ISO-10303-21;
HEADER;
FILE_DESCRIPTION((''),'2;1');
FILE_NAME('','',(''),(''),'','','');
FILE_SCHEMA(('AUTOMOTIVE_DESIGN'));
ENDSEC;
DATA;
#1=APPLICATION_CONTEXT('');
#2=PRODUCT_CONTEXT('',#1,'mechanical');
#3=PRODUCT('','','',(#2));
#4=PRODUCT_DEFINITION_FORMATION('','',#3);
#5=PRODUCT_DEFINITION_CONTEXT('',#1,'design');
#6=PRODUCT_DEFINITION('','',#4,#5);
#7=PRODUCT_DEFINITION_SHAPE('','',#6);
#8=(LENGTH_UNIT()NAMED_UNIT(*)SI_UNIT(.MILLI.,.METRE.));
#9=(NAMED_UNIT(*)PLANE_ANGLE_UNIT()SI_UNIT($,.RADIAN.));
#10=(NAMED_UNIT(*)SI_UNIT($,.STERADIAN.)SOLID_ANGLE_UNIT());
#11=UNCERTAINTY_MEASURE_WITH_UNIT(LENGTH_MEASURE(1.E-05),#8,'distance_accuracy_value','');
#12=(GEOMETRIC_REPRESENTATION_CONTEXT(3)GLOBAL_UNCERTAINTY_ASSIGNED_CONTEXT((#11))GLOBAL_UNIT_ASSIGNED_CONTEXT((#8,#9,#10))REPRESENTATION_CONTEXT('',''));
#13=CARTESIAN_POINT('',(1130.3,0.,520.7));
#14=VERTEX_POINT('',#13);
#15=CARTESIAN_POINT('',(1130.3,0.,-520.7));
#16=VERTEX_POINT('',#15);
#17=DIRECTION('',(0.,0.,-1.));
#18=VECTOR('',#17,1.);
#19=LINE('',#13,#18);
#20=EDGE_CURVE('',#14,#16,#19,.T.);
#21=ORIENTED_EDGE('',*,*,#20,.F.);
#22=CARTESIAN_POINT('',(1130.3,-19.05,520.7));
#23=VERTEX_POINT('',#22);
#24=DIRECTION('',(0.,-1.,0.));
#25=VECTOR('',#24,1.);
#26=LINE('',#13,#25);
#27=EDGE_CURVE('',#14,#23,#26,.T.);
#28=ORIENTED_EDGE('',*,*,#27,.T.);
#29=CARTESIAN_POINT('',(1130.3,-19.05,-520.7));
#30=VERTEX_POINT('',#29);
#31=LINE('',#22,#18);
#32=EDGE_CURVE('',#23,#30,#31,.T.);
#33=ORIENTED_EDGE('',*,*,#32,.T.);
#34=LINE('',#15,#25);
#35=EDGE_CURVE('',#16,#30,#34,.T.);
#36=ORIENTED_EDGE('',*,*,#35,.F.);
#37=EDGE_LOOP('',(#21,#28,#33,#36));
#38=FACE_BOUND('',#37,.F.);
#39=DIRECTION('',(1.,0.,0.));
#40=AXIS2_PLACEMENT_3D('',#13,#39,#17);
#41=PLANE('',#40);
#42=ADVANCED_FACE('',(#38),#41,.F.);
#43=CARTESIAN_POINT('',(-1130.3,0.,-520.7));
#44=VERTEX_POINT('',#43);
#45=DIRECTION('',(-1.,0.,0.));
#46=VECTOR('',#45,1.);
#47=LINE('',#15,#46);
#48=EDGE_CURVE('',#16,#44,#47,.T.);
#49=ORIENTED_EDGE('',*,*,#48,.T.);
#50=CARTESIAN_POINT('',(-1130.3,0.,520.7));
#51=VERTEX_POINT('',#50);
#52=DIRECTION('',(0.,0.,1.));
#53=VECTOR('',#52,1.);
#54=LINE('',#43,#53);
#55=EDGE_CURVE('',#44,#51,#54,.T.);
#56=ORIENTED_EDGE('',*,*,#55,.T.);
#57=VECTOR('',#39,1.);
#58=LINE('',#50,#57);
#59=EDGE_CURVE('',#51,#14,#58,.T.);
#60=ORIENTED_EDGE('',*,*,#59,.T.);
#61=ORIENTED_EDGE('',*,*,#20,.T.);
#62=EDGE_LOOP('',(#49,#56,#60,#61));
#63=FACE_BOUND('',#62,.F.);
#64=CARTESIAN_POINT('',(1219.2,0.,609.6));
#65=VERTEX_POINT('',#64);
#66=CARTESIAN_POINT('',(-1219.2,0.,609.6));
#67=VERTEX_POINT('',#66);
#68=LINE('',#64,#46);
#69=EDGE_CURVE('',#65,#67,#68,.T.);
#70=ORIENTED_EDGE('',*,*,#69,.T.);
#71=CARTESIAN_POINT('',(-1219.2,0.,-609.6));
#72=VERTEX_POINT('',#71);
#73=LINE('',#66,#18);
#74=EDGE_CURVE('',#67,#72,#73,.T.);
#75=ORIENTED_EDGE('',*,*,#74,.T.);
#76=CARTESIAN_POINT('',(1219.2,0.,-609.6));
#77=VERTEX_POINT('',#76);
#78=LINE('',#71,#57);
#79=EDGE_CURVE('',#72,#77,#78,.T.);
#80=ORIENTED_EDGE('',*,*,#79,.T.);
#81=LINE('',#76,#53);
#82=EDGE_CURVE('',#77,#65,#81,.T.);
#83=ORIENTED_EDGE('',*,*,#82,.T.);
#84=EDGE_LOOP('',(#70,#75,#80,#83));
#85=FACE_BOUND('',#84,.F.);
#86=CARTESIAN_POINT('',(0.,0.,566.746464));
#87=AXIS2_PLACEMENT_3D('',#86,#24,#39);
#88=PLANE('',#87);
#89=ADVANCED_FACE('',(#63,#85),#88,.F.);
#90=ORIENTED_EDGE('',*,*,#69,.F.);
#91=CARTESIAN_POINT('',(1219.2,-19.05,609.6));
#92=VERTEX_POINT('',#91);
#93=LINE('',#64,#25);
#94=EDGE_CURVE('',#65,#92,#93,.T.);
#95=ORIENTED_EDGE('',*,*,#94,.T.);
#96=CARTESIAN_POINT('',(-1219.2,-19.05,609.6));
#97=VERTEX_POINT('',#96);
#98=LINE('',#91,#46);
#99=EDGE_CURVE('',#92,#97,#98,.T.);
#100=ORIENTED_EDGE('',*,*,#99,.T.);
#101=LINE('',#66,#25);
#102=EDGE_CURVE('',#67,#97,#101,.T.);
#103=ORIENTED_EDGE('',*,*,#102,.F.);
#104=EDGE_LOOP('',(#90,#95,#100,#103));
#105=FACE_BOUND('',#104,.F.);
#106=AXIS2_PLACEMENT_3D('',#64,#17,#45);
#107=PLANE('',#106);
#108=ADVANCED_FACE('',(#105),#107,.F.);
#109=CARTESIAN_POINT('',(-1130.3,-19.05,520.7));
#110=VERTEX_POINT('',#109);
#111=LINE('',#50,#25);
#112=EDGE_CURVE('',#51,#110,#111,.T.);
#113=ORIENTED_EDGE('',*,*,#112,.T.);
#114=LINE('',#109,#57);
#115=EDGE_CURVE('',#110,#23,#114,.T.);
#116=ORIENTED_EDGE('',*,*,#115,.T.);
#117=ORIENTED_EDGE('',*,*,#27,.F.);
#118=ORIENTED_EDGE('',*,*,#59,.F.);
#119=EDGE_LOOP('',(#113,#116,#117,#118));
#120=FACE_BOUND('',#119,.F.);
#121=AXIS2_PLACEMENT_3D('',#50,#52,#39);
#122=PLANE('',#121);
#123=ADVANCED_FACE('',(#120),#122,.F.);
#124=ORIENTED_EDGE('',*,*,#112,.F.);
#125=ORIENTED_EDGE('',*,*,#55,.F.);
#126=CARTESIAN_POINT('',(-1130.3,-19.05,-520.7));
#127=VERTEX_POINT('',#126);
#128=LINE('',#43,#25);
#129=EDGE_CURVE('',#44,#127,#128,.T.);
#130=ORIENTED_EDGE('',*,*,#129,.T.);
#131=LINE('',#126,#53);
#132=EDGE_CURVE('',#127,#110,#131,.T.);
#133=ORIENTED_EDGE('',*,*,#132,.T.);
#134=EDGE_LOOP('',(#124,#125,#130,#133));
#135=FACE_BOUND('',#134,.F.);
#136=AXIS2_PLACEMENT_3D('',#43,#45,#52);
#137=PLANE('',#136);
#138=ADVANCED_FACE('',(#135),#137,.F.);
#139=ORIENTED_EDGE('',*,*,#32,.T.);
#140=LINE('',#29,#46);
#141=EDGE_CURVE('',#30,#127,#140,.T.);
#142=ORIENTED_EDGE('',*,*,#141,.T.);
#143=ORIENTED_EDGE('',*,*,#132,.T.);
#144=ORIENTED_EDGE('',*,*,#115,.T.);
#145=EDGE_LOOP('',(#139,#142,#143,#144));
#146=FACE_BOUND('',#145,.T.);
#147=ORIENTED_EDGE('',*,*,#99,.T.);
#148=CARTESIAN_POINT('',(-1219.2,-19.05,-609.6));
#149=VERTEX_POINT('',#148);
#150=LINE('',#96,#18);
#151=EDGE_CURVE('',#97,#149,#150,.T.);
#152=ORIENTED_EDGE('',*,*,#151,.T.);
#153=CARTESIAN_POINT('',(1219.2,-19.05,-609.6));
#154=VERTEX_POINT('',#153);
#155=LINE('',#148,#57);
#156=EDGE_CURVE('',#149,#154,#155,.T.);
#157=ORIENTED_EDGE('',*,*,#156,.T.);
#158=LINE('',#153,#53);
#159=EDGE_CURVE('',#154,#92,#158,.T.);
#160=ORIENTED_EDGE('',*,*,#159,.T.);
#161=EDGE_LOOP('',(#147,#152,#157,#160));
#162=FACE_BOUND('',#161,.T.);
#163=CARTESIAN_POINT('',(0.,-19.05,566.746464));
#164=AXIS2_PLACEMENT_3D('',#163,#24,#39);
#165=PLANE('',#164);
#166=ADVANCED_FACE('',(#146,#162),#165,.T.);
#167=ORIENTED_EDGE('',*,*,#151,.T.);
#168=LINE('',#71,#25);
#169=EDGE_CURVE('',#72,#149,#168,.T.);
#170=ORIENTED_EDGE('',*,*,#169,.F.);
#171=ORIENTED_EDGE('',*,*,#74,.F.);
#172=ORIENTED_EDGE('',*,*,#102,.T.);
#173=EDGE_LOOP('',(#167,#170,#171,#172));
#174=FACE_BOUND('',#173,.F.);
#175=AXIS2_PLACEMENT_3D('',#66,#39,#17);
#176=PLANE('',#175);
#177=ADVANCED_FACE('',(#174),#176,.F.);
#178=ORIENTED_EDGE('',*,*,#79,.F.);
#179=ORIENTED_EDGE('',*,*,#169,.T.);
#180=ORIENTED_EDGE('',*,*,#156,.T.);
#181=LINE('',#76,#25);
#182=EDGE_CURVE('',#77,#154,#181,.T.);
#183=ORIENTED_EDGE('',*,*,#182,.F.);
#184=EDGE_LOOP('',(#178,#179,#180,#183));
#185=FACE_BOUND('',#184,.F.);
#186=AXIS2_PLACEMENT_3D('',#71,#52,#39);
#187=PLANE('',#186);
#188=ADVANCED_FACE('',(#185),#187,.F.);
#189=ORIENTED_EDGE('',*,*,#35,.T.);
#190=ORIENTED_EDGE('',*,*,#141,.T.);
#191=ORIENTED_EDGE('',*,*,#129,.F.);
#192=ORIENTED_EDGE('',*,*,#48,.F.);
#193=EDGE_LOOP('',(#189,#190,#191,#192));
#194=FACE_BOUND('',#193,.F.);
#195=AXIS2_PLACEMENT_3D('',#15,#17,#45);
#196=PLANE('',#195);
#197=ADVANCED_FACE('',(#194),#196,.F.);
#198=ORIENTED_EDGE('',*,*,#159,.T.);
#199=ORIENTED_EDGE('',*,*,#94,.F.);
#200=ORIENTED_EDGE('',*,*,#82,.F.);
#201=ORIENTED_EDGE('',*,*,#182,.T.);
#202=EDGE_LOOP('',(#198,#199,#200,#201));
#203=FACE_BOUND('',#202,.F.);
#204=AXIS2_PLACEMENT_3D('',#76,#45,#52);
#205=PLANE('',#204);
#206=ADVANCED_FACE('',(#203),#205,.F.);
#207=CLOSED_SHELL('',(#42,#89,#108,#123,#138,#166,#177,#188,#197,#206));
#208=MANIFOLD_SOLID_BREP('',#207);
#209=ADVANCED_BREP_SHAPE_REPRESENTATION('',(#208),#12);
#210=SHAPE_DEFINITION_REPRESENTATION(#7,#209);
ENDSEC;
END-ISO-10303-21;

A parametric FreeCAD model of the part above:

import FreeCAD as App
import Part
import Sketcher
from FreeCAD import Vector
Q = App.Units.Quantity


def add_polygon(sketch, points):
    """Adds a closed chain of lines whose ends are joined by coincident constraints."""
    first, n = sketch.GeometryCount, len(points)
    for a, b in zip(points, points[1:] + points[:1]):
        sketch.addGeometry(Part.LineSegment(App.Vector(*a, 0), App.Vector(*b, 0)), False)
    for i in range(n):
        sketch.addConstraint(Sketcher.Constraint("Coincident", first + i, 2, first + (i + 1) % n, 1))

doc = App.newDocument("Part")
params = doc.addObject("Spreadsheet::Sheet", "Params")
for row, (alias, value) in enumerate([
    ("sketch1_width", "96 in"),
    ("sketch1_width2", "89 in"),
    ("sketch1_height", "48 in"),
    ("sketch1_height2", "41 in"),
    ("pad1_length", "0.75 in"),
], start=1):
    params.set(f"A{row}", alias)
    params.set(f"B{row}", "=" + value)
    params.setAlias(f"B{row}", alias)

body = doc.addObject("PartDesign::Body", "Body")

sketch1 = body.newObject("Sketcher::SketchObject", "Sketch")
sketch1.AttachmentSupport = (doc.getObject("XZ_Plane"), [""])
sketch1.MapMode = "FlatFace"
add_polygon(sketch1, [(1219, 610), (-1219, 610), (-1219, -610), (1219, -610)])
add_polygon(sketch1, [(-1130, 521), (1130, 521), (1130, -521), (-1130, -521)])
sketch1.addConstraint([
    Sketcher.Constraint("Horizontal", 0),
    Sketcher.Constraint("Vertical", 1),
    Sketcher.Constraint("Horizontal", 2),
    Sketcher.Constraint("Vertical", 3),
    Sketcher.Constraint("Horizontal", 4),
    Sketcher.Constraint("Vertical", 5),
    Sketcher.Constraint("Horizontal", 6),
    Sketcher.Constraint("Vertical", 7),
    Sketcher.Constraint("Symmetric", 0, 2, 2, 2, -1, 1),
    Sketcher.Constraint("Symmetric", 4, 2, 6, 2, -1, 1),
    Sketcher.Constraint("DistanceX", 0, 2, 0, 1, Q("96 in")),
    Sketcher.Constraint("DistanceX", 4, 1, 4, 2, Q("89 in")),
    Sketcher.Constraint("DistanceY", 1, 2, 1, 1, Q("48 in")),
    Sketcher.Constraint("DistanceY", 5, 2, 5, 1, Q("41 in")),
])
sketch1.setExpression("Constraints[18]", "Params.sketch1_width")
sketch1.setExpression("Constraints[19]", "Params.sketch1_width2")
sketch1.setExpression("Constraints[20]", "Params.sketch1_height")
sketch1.setExpression("Constraints[21]", "Params.sketch1_height2")
pad1 = body.newObject("PartDesign::Pad", "Pad")
pad1.Profile = sketch1
pad1.setExpression("Length", "Params.pad1_length")

doc.recompute()
